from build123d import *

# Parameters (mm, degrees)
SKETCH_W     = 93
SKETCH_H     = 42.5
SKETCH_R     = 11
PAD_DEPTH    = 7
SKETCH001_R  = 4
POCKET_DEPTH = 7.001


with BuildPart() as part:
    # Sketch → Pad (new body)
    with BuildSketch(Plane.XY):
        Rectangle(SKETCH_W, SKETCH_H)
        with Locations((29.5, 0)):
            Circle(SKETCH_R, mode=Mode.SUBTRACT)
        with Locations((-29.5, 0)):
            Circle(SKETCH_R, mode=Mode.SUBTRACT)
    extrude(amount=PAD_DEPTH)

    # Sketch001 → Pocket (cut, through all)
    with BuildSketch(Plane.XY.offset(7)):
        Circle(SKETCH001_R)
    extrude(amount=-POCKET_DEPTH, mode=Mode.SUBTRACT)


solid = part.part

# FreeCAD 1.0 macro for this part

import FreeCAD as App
import Part
import Sketcher
from FreeCAD import Vector

doc = App.newDocument("Part")
body = doc.addObject("PartDesign::Body", "Body")

# Sketch on XY plane
sketch1 = body.newObject("Sketcher::SketchObject", "Sketch")
sketch1.AttachmentSupport = (doc.getObject("XY_Plane"), [""])
sketch1.MapMode = "FlatFace"
sketch1.addGeometry(Part.LineSegment(Vector(-46, 21, 0), Vector(-46, -21, 0)), False)
sketch1.addGeometry(Part.LineSegment(Vector(-46, -21, 0), Vector(46, -21, 0)), False)
sketch1.addGeometry(Part.LineSegment(Vector(46, -21, 0), Vector(46, 21, 0)), False)
sketch1.addGeometry(Part.LineSegment(Vector(46, 21, 0), Vector(-46, 21, 0)), False)
sketch1.addGeometry(Part.Circle(Vector(-30, 0, 0), Vector(0, 0, 1), 11), False)
sketch1.addGeometry(Part.Circle(Vector(30, 0, 0), Vector(0, 0, 1), 11), False)
sketch1.addConstraint(Sketcher.Constraint("Coincident", 0, 2, 1, 1))
sketch1.addConstraint(Sketcher.Constraint("Coincident", 1, 2, 2, 1))
sketch1.addConstraint(Sketcher.Constraint("Coincident", 2, 2, 3, 1))
sketch1.addConstraint(Sketcher.Constraint("Coincident", 3, 2, 0, 1))
sketch1.addConstraint(Sketcher.Constraint("Vertical", 0))
sketch1.addConstraint(Sketcher.Constraint("Horizontal", 1))
sketch1.addConstraint(Sketcher.Constraint("Vertical", 2))
sketch1.addConstraint(Sketcher.Constraint("Horizontal", 3))
sketch1.addConstraint(Sketcher.Constraint("Equal", 4, 5))
sketch1.addConstraint(Sketcher.Constraint("Symmetric", 4, 3, 5, 3, -1, 1))
sketch1.addConstraint(Sketcher.Constraint("Symmetric", 0, 2, 2, 2, -1, 1))
sketch1.addConstraint(Sketcher.Constraint("PointOnObject", 4, 3, -1))
sketch1.addConstraint(Sketcher.Constraint("Diameter", 4, 22.0))
sketch1.addConstraint(Sketcher.Constraint("DistanceX", 1, 1, 1, 2, 93.0))
sketch1.addConstraint(Sketcher.Constraint("DistanceY", 0, 2, 0, 1, 42.5))
sketch1.addConstraint(Sketcher.Constraint("DistanceX", 4, 3, 5, 3, 59.0))
pad1 = body.newObject("PartDesign::Pad", "Pad")
pad1.Profile = sketch1
pad1.Length = 7

# Sketch on XY plane
sketch2 = body.newObject("Sketcher::SketchObject", "Sketch001")
sketch2.AttachmentSupport = (doc.getObject("XY_Plane"), [""])
sketch2.MapMode = "FlatFace"
sketch2.AttachmentOffset = App.Placement(Vector(0, 0, 7), App.Rotation())
sketch2.addGeometry(Part.Circle(Vector(0, 0, 0), Vector(0, 0, 1), 4), False)
sketch2.addConstraint(Sketcher.Constraint("Coincident", 0, 3, -1, 1))
sketch2.addConstraint(Sketcher.Constraint("Diameter", 0, 8.0))
pocket1 = body.newObject("PartDesign::Pocket", "Pocket")
pocket1.Profile = sketch2
pocket1.Type = "ThroughAll"

doc.recompute()
